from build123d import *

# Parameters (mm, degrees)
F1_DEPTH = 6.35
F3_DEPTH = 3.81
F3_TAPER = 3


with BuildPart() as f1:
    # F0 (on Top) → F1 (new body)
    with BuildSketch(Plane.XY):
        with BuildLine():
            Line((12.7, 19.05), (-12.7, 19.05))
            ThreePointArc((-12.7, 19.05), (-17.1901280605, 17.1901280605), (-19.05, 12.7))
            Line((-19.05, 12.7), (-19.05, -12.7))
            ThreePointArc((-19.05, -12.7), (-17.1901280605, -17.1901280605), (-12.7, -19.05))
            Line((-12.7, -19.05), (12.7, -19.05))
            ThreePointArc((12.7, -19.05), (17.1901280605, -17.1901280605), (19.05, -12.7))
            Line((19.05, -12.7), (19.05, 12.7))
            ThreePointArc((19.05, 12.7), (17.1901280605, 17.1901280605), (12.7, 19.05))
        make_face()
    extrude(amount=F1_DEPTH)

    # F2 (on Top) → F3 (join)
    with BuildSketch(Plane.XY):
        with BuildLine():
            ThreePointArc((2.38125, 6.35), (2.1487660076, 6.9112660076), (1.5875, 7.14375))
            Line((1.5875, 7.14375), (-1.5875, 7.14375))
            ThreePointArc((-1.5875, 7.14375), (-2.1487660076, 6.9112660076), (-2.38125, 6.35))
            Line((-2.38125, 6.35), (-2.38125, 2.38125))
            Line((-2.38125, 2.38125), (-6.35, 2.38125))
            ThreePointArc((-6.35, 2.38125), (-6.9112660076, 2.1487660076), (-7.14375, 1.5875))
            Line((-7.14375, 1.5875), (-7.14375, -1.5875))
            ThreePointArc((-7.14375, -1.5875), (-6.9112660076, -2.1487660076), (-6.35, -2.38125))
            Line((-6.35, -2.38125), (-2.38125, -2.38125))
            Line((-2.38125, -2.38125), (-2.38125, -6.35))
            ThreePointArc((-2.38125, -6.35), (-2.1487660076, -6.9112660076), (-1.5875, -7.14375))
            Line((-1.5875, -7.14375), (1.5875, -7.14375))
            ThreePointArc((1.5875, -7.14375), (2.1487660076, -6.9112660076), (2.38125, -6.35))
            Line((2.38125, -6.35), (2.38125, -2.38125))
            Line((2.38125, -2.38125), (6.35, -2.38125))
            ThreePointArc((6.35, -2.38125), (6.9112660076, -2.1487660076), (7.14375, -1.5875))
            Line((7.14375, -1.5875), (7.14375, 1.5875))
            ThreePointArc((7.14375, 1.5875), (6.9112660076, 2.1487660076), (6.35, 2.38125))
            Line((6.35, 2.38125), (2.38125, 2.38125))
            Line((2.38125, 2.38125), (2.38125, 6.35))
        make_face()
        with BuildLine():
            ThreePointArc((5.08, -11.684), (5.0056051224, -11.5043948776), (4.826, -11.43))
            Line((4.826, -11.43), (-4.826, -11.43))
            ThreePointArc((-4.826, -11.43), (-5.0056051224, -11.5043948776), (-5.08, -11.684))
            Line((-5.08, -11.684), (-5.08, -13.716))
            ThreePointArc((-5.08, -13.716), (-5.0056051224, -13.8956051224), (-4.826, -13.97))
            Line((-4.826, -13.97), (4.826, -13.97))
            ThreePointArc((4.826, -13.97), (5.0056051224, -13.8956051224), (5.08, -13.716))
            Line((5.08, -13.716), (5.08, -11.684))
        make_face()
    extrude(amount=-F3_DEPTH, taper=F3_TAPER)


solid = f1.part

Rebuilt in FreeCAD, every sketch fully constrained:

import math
import FreeCAD as App
import Part
import Sketcher

V = App.Vector
Q = App.Units.Quantity

doc = App.newDocument("Part")
params = doc.addObject("Spreadsheet::Sheet", "Params")
for row, (alias, value) in enumerate([
    ("sketch1_width", "1 in"),
    ("sketch1_radius", "0.25 in"),
    ("pad1_length", "0.25 in"),
    ("sketch2_radius", "0.01 in"),
    ("sketch2_radius2", "0.03125 in"),
    ("sketch2_width", "0.38 in"),
    ("sketch2_height", "0.08 in"),
    ("sketch2_width2", "0.125 in"),
    ("pad2_length", "0.15 in"),
    ("pad2_taper", "-3 deg"),
], start=1):
    params.set(f"A{row}", alias)
    params.set(f"B{row}", "=" + value)
    params.setAlias(f"B{row}", alias)

body = doc.addObject("PartDesign::Body", "Body")

# Sketch on XY plane
sketch1 = body.newObject("Sketcher::SketchObject", "Sketch")
sketch1.AttachmentSupport = (doc.getObject("XY_Plane"), [""])
sketch1.MapMode = "FlatFace"
sketch1.addGeometry(Part.LineSegment(V(12.7, 19.05, 0), V(-12.7, 19.05, 0)), False)
sketch1.addGeometry(Part.ArcOfCircle(Part.Circle(V(-12.7, 12.7, 0), V(0, 0, 1), 6.35), math.radians(90), math.radians(180)), False)
sketch1.addGeometry(Part.LineSegment(V(-19.05, 12.7, 0), V(-19.05, -12.7, 0)), False)
sketch1.addGeometry(Part.ArcOfCircle(Part.Circle(V(-12.7, -12.7, 0), V(0, 0, 1), 6.35), math.radians(180), math.radians(270)), False)
sketch1.addGeometry(Part.LineSegment(V(-12.7, -19.05, 0), V(12.7, -19.05, 0)), False)
sketch1.addGeometry(Part.ArcOfCircle(Part.Circle(V(12.7, -12.7, 0), V(0, 0, 1), 6.35), math.radians(-90), math.radians(0)), False)
sketch1.addGeometry(Part.LineSegment(V(19.05, -12.7, 0), V(19.05, 12.7, 0)), False)
sketch1.addGeometry(Part.ArcOfCircle(Part.Circle(V(12.7, 12.7, 0), V(0, 0, 1), 6.35), math.radians(0), math.radians(90)), False)
sketch1.addConstraint(Sketcher.Constraint("Tangent", 0, 2, 1, 1))
sketch1.addConstraint(Sketcher.Constraint("Tangent", 1, 2, 2, 1))
sketch1.addConstraint(Sketcher.Constraint("Tangent", 2, 2, 3, 1))
sketch1.addConstraint(Sketcher.Constraint("Tangent", 3, 2, 4, 1))
sketch1.addConstraint(Sketcher.Constraint("Tangent", 4, 2, 5, 1))
sketch1.addConstraint(Sketcher.Constraint("Tangent", 5, 2, 6, 1))
sketch1.addConstraint(Sketcher.Constraint("Tangent", 6, 2, 7, 1))
sketch1.addConstraint(Sketcher.Constraint("Tangent", 7, 2, 0, 1))
sketch1.addConstraint(Sketcher.Constraint("Horizontal", 0))
sketch1.addConstraint(Sketcher.Constraint("Vertical", 2))
sketch1.addConstraint(Sketcher.Constraint("Horizontal", 4))
sketch1.addConstraint(Sketcher.Constraint("Vertical", 6))
sketch1.addConstraint(Sketcher.Constraint("Equal", 1, 3))
sketch1.addConstraint(Sketcher.Constraint("Equal", 3, 5))
sketch1.addConstraint(Sketcher.Constraint("Equal", 5, 7))
sketch1.addConstraint(Sketcher.Constraint("Symmetric", 1, 3, 5, 3, -1, 1))
sketch1.addConstraint(Sketcher.Constraint("Equal", 4, 2))
sketch1.addConstraint(Sketcher.Constraint("DistanceX", 0, 2, 0, 1, Q("1 in")))
sketch1.addConstraint(Sketcher.Constraint("Radius", 1, Q("0.25 in")))
sketch1.setExpression("Constraints[17]", "Params.sketch1_width")
sketch1.setExpression("Constraints[18]", "Params.sketch1_radius")
pad1 = body.newObject("PartDesign::Pad", "Pad")
pad1.Profile = sketch1
pad1.setExpression("Length", "Params.pad1_length")

# Sketch on XY plane
sketch2 = body.newObject("Sketcher::SketchObject", "Sketch001")
sketch2.AttachmentSupport = (doc.getObject("XY_Plane"), [""])
sketch2.MapMode = "FlatFace"
sketch2.addGeometry(Part.ArcOfCircle(Part.Circle(V(1.5875, 6.35, 0), V(0, 0, 1), 0.79375), math.radians(0), math.radians(90)), False)
sketch2.addGeometry(Part.LineSegment(V(1.5875, 7.14375, 0), V(-1.5875, 7.14375, 0)), False)
sketch2.addGeometry(Part.ArcOfCircle(Part.Circle(V(-1.5875, 6.35, 0), V(0, 0, 1), 0.79375), math.radians(90), math.radians(180)), False)
sketch2.addGeometry(Part.LineSegment(V(-2.38125, 6.35, 0), V(-2.38125, 2.38125, 0)), False)
sketch2.addGeometry(Part.LineSegment(V(-2.38125, 2.38125, 0), V(-6.35, 2.38125, 0)), False)
sketch2.addGeometry(Part.ArcOfCircle(Part.Circle(V(-6.35, 1.5875, 0), V(0, 0, 1), 0.79375), math.radians(90), math.radians(180)), False)
sketch2.addGeometry(Part.LineSegment(V(-7.14375, 1.5875, 0), V(-7.14375, -1.5875, 0)), False)
sketch2.addGeometry(Part.ArcOfCircle(Part.Circle(V(-6.35, -1.5875, 0), V(0, 0, 1), 0.79375), math.radians(180), math.radians(270)), False)
sketch2.addGeometry(Part.LineSegment(V(-6.35, -2.38125, 0), V(-2.38125, -2.38125, 0)), False)
sketch2.addGeometry(Part.LineSegment(V(-2.38125, -2.38125, 0), V(-2.38125, -6.35, 0)), False)
sketch2.addGeometry(Part.ArcOfCircle(Part.Circle(V(-1.5875, -6.35, 0), V(0, 0, 1), 0.79375), math.radians(180), math.radians(270)), False)
sketch2.addGeometry(Part.LineSegment(V(-1.5875, -7.14375, 0), V(1.5875, -7.14375, 0)), False)
sketch2.addGeometry(Part.ArcOfCircle(Part.Circle(V(1.5875, -6.35, 0), V(0, 0, 1), 0.79375), math.radians(-90), math.radians(0)), False)
sketch2.addGeometry(Part.LineSegment(V(2.38125, -6.35, 0), V(2.38125, -2.38125, 0)), False)
sketch2.addGeometry(Part.LineSegment(V(2.38125, -2.38125, 0), V(6.35, -2.38125, 0)), False)
sketch2.addGeometry(Part.ArcOfCircle(Part.Circle(V(6.35, -1.5875, 0), V(0, 0, 1), 0.79375), math.radians(-90), math.radians(0)), False)
sketch2.addGeometry(Part.LineSegment(V(7.14375, -1.5875, 0), V(7.14375, 1.5875, 0)), False)
sketch2.addGeometry(Part.ArcOfCircle(Part.Circle(V(6.35, 1.5875, 0), V(0, 0, 1), 0.79375), math.radians(0), math.radians(90)), False)
sketch2.addGeometry(Part.LineSegment(V(6.35, 2.38125, 0), V(2.38125, 2.38125, 0)), False)
sketch2.addGeometry(Part.LineSegment(V(2.38125, 2.38125, 0), V(2.38125, 6.35, 0)), False)
sketch2.addGeometry(Part.ArcOfCircle(Part.Circle(V(4.826, -11.684, 0), V(0, 0, 1), 0.254), math.radians(0), math.radians(90)), False)
sketch2.addGeometry(Part.LineSegment(V(4.826, -11.43, 0), V(-4.826, -11.43, 0)), False)
sketch2.addGeometry(Part.ArcOfCircle(Part.Circle(V(-4.826, -11.684, 0), V(0, 0, 1), 0.254), math.radians(90), math.radians(180)), False)
sketch2.addGeometry(Part.LineSegment(V(-5.08, -11.684, 0), V(-5.08, -13.716, 0)), False)
sketch2.addGeometry(Part.ArcOfCircle(Part.Circle(V(-4.826, -13.716, 0), V(0, 0, 1), 0.254), math.radians(180), math.radians(270)), False)
sketch2.addGeometry(Part.LineSegment(V(-4.826, -13.97, 0), V(4.826, -13.97, 0)), False)
sketch2.addGeometry(Part.ArcOfCircle(Part.Circle(V(4.826, -13.716, 0), V(0, 0, 1), 0.254), math.radians(-90), math.radians(0)), False)
sketch2.addGeometry(Part.LineSegment(V(5.08, -13.716, 0), V(5.08, -11.684, 0)), False)
sketch2.addConstraint(Sketcher.Constraint("Tangent", 0, 2, 1, 1))
sketch2.addConstraint(Sketcher.Constraint("Tangent", 1, 2, 2, 1))
sketch2.addConstraint(Sketcher.Constraint("Tangent", 2, 2, 3, 1))
sketch2.addConstraint(Sketcher.Constraint("Coincident", 3, 2, 4, 1))
sketch2.addConstraint(Sketcher.Constraint("Tangent", 4, 2, 5, 1))
sketch2.addConstraint(Sketcher.Constraint("Tangent", 5, 2, 6, 1))
sketch2.addConstraint(Sketcher.Constraint("Tangent", 6, 2, 7, 1))
sketch2.addConstraint(Sketcher.Constraint("Tangent", 7, 2, 8, 1))
sketch2.addConstraint(Sketcher.Constraint("Coincident", 8, 2, 9, 1))
sketch2.addConstraint(Sketcher.Constraint("Tangent", 9, 2, 10, 1))
sketch2.addConstraint(Sketcher.Constraint("Tangent", 10, 2, 11, 1))
sketch2.addConstraint(Sketcher.Constraint("Tangent", 11, 2, 12, 1))
sketch2.addConstraint(Sketcher.Constraint("Tangent", 12, 2, 13, 1))
sketch2.addConstraint(Sketcher.Constraint("Coincident", 13, 2, 14, 1))
sketch2.addConstraint(Sketcher.Constraint("Tangent", 14, 2, 15, 1))
sketch2.addConstraint(Sketcher.Constraint("Tangent", 15, 2, 16, 1))
sketch2.addConstraint(Sketcher.Constraint("Tangent", 16, 2, 17, 1))
sketch2.addConstraint(Sketcher.Constraint("Tangent", 17, 2, 18, 1))
sketch2.addConstraint(Sketcher.Constraint("Coincident", 18, 2, 19, 1))
sketch2.addConstraint(Sketcher.Constraint("Tangent", 19, 2, 0, 1))
sketch2.addConstraint(Sketcher.Constraint("Tangent", 20, 2, 21, 1))
sketch2.addConstraint(Sketcher.Constraint("Tangent", 21, 2, 22, 1))
sketch2.addConstraint(Sketcher.Constraint("Tangent", 22, 2, 23, 1))
sketch2.addConstraint(Sketcher.Constraint("Tangent", 23, 2, 24, 1))
sketch2.addConstraint(Sketcher.Constraint("Tangent", 24, 2, 25, 1))
sketch2.addConstraint(Sketcher.Constraint("Tangent", 25, 2, 26, 1))
sketch2.addConstraint(Sketcher.Constraint("Tangent", 26, 2, 27, 1))
sketch2.addConstraint(Sketcher.Constraint("Tangent", 27, 2, 20, 1))
sketch2.addConstraint(Sketcher.Constraint("Horizontal", 1))
sketch2.addConstraint(Sketcher.Constraint("Vertical", 3))
sketch2.addConstraint(Sketcher.Constraint("Horizontal", 4))
sketch2.addConstraint(Sketcher.Constraint("Vertical", 6))
sketch2.addConstraint(Sketcher.Constraint("Horizontal", 8))
sketch2.addConstraint(Sketcher.Constraint("Vertical", 9))
sketch2.addConstraint(Sketcher.Constraint("Horizontal", 11))
sketch2.addConstraint(Sketcher.Constraint("Vertical", 13))
sketch2.addConstraint(Sketcher.Constraint("Horizontal", 14))
sketch2.addConstraint(Sketcher.Constraint("Vertical", 16))
sketch2.addConstraint(Sketcher.Constraint("Horizontal", 18))
sketch2.addConstraint(Sketcher.Constraint("Vertical", 19))
sketch2.addConstraint(Sketcher.Constraint("Horizontal", 21))
sketch2.addConstraint(Sketcher.Constraint("Vertical", 23))
sketch2.addConstraint(Sketcher.Constraint("Horizontal", 25))
sketch2.addConstraint(Sketcher.Constraint("Vertical", 27))
sketch2.addConstraint(Sketcher.Constraint("Equal", 0, 2))
sketch2.addConstraint(Sketcher.Constraint("Equal", 2, 5))
sketch2.addConstraint(Sketcher.Constraint("Equal", 5, 7))
sketch2.addConstraint(Sketcher.Constraint("Equal", 7, 10))
sketch2.addConstraint(Sketcher.Constraint("Equal", 10, 12))
sketch2.addConstraint(Sketcher.Constraint("Equal", 12, 15))
sketch2.addConstraint(Sketcher.Constraint("Equal", 15, 17))
sketch2.addConstraint(Sketcher.Constraint("Equal", 20, 22))
sketch2.addConstraint(Sketcher.Constraint("Equal", 22, 24))
sketch2.addConstraint(Sketcher.Constraint("Equal", 24, 26))
sketch2.addConstraint(Sketcher.Constraint("Symmetric", 0, 3, 10, 3, -1, 1))
sketch2.addConstraint(Sketcher.Constraint("Symmetric", 5, 3, 15, 3, -1, 1))
sketch2.addConstraint(Sketcher.Constraint("Symmetric", 8, 2, 13, 2, -2))
sketch2.addConstraint(Sketcher.Constraint("Symmetric", 3, 2, 18, 2, -2))
sketch2.addConstraint(Sketcher.Constraint("Equal", 18, 3))
sketch2.addConstraint(Sketcher.Constraint("Equal", 11, 6))
sketch2.addConstraint(Sketcher.Constraint("Radius", 20, Q("0.01 in")))
sketch2.addConstraint(Sketcher.Constraint("Radius", 0, Q("0.03125 in")))
sketch2.addConstraint(Sketcher.Constraint("DistanceX", 21, 2, 21, 1, Q("0.38 in")))
sketch2.addConstraint(Sketcher.Constraint("DistanceY", 23, 2, 23, 1, Q("0.08 in")))
sketch2.addConstraint(Sketcher.Constraint("DistanceX", 22, 2, -1, 1, Q("0.2 in")))
sketch2.addConstraint(Sketcher.Constraint("DistanceY", 10, 3, 2, 3, Q("0.5 in")))
sketch2.addConstraint(Sketcher.Constraint("DistanceY", 20, 2, 12, 2, Q("0.2 in")))
sketch2.addConstraint(Sketcher.Constraint("DistanceX", 1, 2, 1, 1, Q("0.125 in")))
sketch2.setExpression("Constraints[60]", "Params.sketch2_radius")
sketch2.setExpression("Constraints[61]", "Params.sketch2_radius2")
sketch2.setExpression("Constraints[62]", "Params.sketch2_width")
sketch2.setExpression("Constraints[63]", "Params.sketch2_height")
sketch2.setExpression("Constraints[67]", "Params.sketch2_width2")
pad2 = body.newObject("PartDesign::Pad", "Pad001")
pad2.Profile = sketch2
pad2.setExpression("Length", "Params.pad2_length")
pad2.Reversed = True
pad2.setExpression("TaperAngle", "Params.pad2_taper")

doc.recompute()
